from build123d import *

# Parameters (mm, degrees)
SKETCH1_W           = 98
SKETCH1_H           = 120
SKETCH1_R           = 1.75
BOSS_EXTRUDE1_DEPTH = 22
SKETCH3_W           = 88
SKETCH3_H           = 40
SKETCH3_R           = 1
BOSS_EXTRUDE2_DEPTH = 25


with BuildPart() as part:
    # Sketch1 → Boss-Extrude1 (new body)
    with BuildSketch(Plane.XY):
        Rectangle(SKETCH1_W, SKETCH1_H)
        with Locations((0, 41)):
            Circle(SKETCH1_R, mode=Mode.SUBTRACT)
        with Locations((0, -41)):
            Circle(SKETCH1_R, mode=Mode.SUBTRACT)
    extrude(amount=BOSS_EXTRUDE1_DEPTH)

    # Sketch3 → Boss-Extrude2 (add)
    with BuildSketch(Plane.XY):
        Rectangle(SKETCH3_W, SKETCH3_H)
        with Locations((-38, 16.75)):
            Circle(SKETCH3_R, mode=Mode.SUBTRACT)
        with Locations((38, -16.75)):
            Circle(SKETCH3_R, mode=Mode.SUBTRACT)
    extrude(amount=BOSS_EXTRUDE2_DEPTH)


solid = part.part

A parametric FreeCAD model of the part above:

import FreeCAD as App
import Part
import Sketcher
Q = App.Units.Quantity

doc = App.newDocument("Part")
body = doc.addObject("PartDesign::Body", "Body")

# Sketch on XY plane
sketch1 = doc.addObject("Sketcher::SketchObject", "Sketch")
body.addObject(sketch1)
sketch1.AttachmentSupport = (doc.XY_Plane, [""])
sketch1.MapMode = "FlatFace"
sketch1.addGeometry([
    Part.LineSegment(App.Vector(-49, 60, 0), App.Vector(-49, -60, 0)),  # 0
    Part.LineSegment(App.Vector(-49, -60, 0), App.Vector(49, -60, 0)),  # 1
    Part.LineSegment(App.Vector(49, -60, 0), App.Vector(49, 60, 0)),  # 2
    Part.LineSegment(App.Vector(49, 60, 0), App.Vector(-49, 60, 0)),  # 3
    Part.Circle(App.Vector(0, -41, 0), App.Vector(0, 0, 1), 1.8),  # 4
    Part.Circle(App.Vector(0, 41, 0), App.Vector(0, 0, 1), 1.8),  # 5
], False)
sketch1.addConstraint([
    Sketcher.Constraint("Coincident", 0, 2, 1, 1),
    Sketcher.Constraint("Coincident", 1, 2, 2, 1),
    Sketcher.Constraint("Coincident", 2, 2, 3, 1),
    Sketcher.Constraint("Coincident", 3, 2, 0, 1),
    Sketcher.Constraint("Vertical", 0),
    Sketcher.Constraint("Horizontal", 1),
    Sketcher.Constraint("Vertical", 2),
    Sketcher.Constraint("Horizontal", 3),
    Sketcher.Constraint("Equal", 4, 5),
    Sketcher.Constraint("Symmetric", 4, 3, 5, 3, -1, 1),
    Sketcher.Constraint("Symmetric", 0, 2, 2, 2, -1, 1),
    Sketcher.Constraint("PointOnObject", 4, 3, -2),
    Sketcher.Constraint("Diameter", 4, Q("3.5 mm")),
    Sketcher.Constraint("DistanceX", 1, 1, 1, 2, Q("98 mm")),
    Sketcher.Constraint("DistanceY", 0, 2, 0, 1, Q("120 mm")),
    Sketcher.Constraint("DistanceY", 4, 3, -1, 1, Q("41 mm")),
])
pad1 = doc.addObject("PartDesign::Pad", "Pad")
body.addObject(pad1)
pad1.Profile = sketch1
pad1.Length = 22

# Sketch on XY plane
sketch2 = doc.addObject("Sketcher::SketchObject", "Sketch001")
body.addObject(sketch2)
sketch2.AttachmentSupport = (doc.XY_Plane, [""])
sketch2.MapMode = "FlatFace"
sketch2.addGeometry([
    Part.LineSegment(App.Vector(-44, 20, 0), App.Vector(-44, -20, 0)),  # 0
    Part.LineSegment(App.Vector(-44, -20, 0), App.Vector(44, -20, 0)),  # 1
    Part.LineSegment(App.Vector(44, -20, 0), App.Vector(44, 20, 0)),  # 2
    Part.LineSegment(App.Vector(44, 20, 0), App.Vector(-44, 20, 0)),  # 3
    Part.Circle(App.Vector(38, -16.8, 0), App.Vector(0, 0, 1), 1),  # 4
    Part.Circle(App.Vector(-38, 16.8, 0), App.Vector(0, 0, 1), 1),  # 5
], False)
sketch2.addConstraint([
    Sketcher.Constraint("Coincident", 0, 2, 1, 1),
    Sketcher.Constraint("Coincident", 1, 2, 2, 1),
    Sketcher.Constraint("Coincident", 2, 2, 3, 1),
    Sketcher.Constraint("Coincident", 3, 2, 0, 1),
    Sketcher.Constraint("Vertical", 0),
    Sketcher.Constraint("Horizontal", 1),
    Sketcher.Constraint("Vertical", 2),
    Sketcher.Constraint("Horizontal", 3),
    Sketcher.Constraint("Equal", 4, 5),
    Sketcher.Constraint("Symmetric", 4, 3, 5, 3, -1, 1),
    Sketcher.Constraint("Symmetric", 0, 2, 2, 2, -1, 1),
    Sketcher.Constraint("Diameter", 4, Q("2 mm")),
    Sketcher.Constraint("DistanceX", 1, 1, 1, 2, Q("88 mm")),
    Sketcher.Constraint("DistanceY", 0, 2, 0, 1, Q("40 mm")),
    Sketcher.Constraint("DistanceX", -1, 1, 4, 3, Q("38 mm")),
    Sketcher.Constraint("DistanceY", 4, 3, 5, 3, Q("33.5 mm")),
])
pad2 = doc.addObject("PartDesign::Pad", "Pad001")
body.addObject(pad2)
pad2.Profile = sketch2
pad2.Length = 25

doc.recompute()
